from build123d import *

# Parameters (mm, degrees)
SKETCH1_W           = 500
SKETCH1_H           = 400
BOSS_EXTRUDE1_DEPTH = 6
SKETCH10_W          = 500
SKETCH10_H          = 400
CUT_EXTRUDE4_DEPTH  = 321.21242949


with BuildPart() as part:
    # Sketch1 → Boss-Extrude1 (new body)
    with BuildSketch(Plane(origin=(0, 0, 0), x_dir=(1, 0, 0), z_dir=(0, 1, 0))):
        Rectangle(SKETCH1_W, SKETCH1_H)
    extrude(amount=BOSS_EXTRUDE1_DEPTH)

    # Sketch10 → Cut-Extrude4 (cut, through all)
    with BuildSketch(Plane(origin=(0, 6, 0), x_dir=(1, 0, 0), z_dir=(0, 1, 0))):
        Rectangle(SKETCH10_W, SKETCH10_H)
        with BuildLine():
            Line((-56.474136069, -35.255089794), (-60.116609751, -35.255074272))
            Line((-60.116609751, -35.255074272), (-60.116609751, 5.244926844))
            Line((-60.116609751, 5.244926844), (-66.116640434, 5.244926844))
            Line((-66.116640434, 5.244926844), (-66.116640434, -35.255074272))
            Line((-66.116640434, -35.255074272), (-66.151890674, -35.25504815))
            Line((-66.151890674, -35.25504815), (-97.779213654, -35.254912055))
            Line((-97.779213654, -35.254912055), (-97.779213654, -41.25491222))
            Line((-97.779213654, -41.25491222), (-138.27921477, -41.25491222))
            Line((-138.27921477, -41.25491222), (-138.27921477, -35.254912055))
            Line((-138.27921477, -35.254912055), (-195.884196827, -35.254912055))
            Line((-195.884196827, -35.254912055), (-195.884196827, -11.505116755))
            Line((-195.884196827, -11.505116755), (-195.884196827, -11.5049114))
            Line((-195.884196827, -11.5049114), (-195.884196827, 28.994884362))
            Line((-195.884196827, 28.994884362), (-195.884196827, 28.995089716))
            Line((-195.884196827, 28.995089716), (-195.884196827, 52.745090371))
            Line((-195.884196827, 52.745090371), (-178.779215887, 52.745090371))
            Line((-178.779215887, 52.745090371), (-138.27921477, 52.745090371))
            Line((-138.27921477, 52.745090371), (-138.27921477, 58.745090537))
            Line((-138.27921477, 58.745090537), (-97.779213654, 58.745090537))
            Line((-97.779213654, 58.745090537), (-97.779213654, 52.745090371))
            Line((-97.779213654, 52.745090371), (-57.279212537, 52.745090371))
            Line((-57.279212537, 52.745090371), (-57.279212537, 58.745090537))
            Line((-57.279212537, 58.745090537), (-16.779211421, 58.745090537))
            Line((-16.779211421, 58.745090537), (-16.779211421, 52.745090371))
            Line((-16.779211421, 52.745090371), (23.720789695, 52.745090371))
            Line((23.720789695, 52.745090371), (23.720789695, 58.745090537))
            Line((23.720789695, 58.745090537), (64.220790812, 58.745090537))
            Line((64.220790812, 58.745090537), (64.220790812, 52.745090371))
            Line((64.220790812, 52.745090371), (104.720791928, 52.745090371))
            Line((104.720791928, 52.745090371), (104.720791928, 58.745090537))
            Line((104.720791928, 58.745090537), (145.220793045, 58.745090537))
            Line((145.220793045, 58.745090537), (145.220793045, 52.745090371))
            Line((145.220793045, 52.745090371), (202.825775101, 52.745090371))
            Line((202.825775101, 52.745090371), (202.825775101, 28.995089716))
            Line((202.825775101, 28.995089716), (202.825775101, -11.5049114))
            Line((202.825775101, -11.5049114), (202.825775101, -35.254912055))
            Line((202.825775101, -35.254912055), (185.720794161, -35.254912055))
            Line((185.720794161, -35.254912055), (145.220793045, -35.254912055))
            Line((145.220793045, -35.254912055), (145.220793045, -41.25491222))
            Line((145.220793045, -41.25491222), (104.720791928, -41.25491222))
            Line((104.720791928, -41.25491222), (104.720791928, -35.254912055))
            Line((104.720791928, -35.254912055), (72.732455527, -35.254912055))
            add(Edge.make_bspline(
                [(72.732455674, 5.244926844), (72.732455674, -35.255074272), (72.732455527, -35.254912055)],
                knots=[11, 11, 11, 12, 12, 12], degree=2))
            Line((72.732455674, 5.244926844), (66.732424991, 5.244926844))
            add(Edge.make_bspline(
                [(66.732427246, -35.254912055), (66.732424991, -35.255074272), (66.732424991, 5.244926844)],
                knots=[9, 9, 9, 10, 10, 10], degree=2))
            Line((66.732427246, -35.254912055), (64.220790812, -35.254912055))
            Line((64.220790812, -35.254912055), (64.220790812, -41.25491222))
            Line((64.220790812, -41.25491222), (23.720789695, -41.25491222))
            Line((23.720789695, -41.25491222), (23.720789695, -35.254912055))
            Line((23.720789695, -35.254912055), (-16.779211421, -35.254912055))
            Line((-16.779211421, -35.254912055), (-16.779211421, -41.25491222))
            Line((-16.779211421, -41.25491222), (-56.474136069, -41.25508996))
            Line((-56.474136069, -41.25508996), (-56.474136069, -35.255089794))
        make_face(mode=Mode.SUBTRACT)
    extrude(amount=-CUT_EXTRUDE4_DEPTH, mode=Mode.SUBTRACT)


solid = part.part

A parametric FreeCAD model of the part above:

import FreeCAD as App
import Part
import Sketcher
Q = App.Units.Quantity


def add_polygon(sketch, points):
    """Adds a closed chain of lines whose ends are joined by coincident constraints."""
    first, n = sketch.GeometryCount, len(points)
    for a, b in zip(points, points[1:] + points[:1]):
        sketch.addGeometry(Part.LineSegment(App.Vector(*a, 0), App.Vector(*b, 0)), False)
    for i in range(n):
        sketch.addConstraint(Sketcher.Constraint("Coincident", first + i, 2, first + (i + 1) % n, 1))

doc = App.newDocument("Part")
body = doc.addObject("PartDesign::Body", "Body")

sketch1 = body.newObject("Sketcher::SketchObject", "Sketch")
sketch1.AttachmentSupport = (doc.getObject("XZ_Plane"), [""])
sketch1.MapMode = "FlatFace"
add_polygon(sketch1, [(-250, -200), (-250, 200), (250, 200), (250, -200)])
sketch1.addConstraint(Sketcher.Constraint("Vertical", 0))
sketch1.addConstraint(Sketcher.Constraint("Horizontal", 1))
sketch1.addConstraint(Sketcher.Constraint("Vertical", 2))
sketch1.addConstraint(Sketcher.Constraint("Horizontal", 3))
sketch1.addConstraint(Sketcher.Constraint("Symmetric", 0, 2, 2, 2, -1, 1))
sketch1.addConstraint(Sketcher.Constraint("DistanceX", 1, 1, 1, 2, Q("500 mm")))
sketch1.addConstraint(Sketcher.Constraint("DistanceY", 0, 1, 0, 2, Q("400 mm")))
pad1 = body.newObject("PartDesign::Pad", "Pad")
pad1.Profile = sketch1
pad1.Length = 6
pad1.Reversed = True

sketch2 = body.newObject("Sketcher::SketchObject", "Sketch001")
sketch2.AttachmentSupport = (doc.getObject("XZ_Plane"), [""])
sketch2.MapMode = "FlatFace"
sketch2.AttachmentOffset = App.Placement(App.Vector(0, 0, -6), App.Rotation())
add_polygon(sketch2, [(-250, -200), (-250, 200), (250, 200), (250, -200)])
sketch2.addGeometry(Part.LineSegment(App.Vector(-56.474136, 41.25509, 0), App.Vector(-56.474136, 35.25509, 0)), False)
sketch2.addGeometry(Part.LineSegment(App.Vector(-56.474136, 35.25509, 0), App.Vector(-60.11661, 35.255074, 0)), False)
sketch2.addGeometry(Part.LineSegment(App.Vector(-60.11661, 35.255074, 0), App.Vector(-60.11661, -5.244927, 0)), False)
sketch2.addGeometry(Part.LineSegment(App.Vector(-60.11661, -5.244927, 0), App.Vector(-66.11664, -5.244927, 0)), False)
sketch2.addGeometry(Part.LineSegment(App.Vector(-66.11664, -5.244927, 0), App.Vector(-66.11664, 35.255074, 0)), False)
sketch2.addGeometry(Part.LineSegment(App.Vector(-66.11664, 35.255074, 0), App.Vector(-66.151891, 35.255048, 0)), False)
sketch2.addGeometry(Part.LineSegment(App.Vector(-66.151891, 35.255048, 0), App.Vector(-97.779214, 35.254912, 0)), False)
sketch2.addGeometry(Part.LineSegment(App.Vector(-97.779214, 35.254912, 0), App.Vector(-97.779214, 41.254912, 0)), False)
sketch2.addGeometry(Part.LineSegment(App.Vector(-97.779214, 41.254912, 0), App.Vector(-138.279215, 41.254912, 0)), False)
sketch2.addGeometry(Part.LineSegment(App.Vector(-138.279215, 41.254912, 0), App.Vector(-138.279215, 35.254912, 0)), False)
sketch2.addGeometry(Part.LineSegment(App.Vector(-138.279215, 35.254912, 0), App.Vector(-195.884197, 35.254912, 0)), False)
sketch2.addGeometry(Part.LineSegment(App.Vector(-195.884197, 35.254912, 0), App.Vector(-195.884197, -52.74509, 0)), False)
sketch2.addGeometry(Part.LineSegment(App.Vector(-195.884197, -52.74509, 0), App.Vector(-138.279215, -52.74509, 0)), False)
sketch2.addGeometry(Part.LineSegment(App.Vector(-138.279215, -52.74509, 0), App.Vector(-138.279215, -58.745091, 0)), False)
sketch2.addGeometry(Part.LineSegment(App.Vector(-138.279215, -58.745091, 0), App.Vector(-97.779214, -58.745091, 0)), False)
sketch2.addGeometry(Part.LineSegment(App.Vector(-97.779214, -58.745091, 0), App.Vector(-97.779214, -52.74509, 0)), False)
sketch2.addGeometry(Part.LineSegment(App.Vector(-97.779214, -52.74509, 0), App.Vector(-57.279213, -52.74509, 0)), False)
sketch2.addGeometry(Part.LineSegment(App.Vector(-57.279213, -52.74509, 0), App.Vector(-57.279213, -58.745091, 0)), False)
sketch2.addGeometry(Part.LineSegment(App.Vector(-57.279213, -58.745091, 0), App.Vector(-16.779211, -58.745091, 0)), False)
sketch2.addGeometry(Part.LineSegment(App.Vector(-16.779211, -58.745091, 0), App.Vector(-16.779211, -52.74509, 0)), False)
sketch2.addGeometry(Part.LineSegment(App.Vector(-16.779211, -52.74509, 0), App.Vector(23.72079, -52.74509, 0)), False)
sketch2.addGeometry(Part.LineSegment(App.Vector(23.72079, -52.74509, 0), App.Vector(23.72079, -58.745091, 0)), False)
sketch2.addGeometry(Part.LineSegment(App.Vector(23.72079, -58.745091, 0), App.Vector(64.220791, -58.745091, 0)), False)
sketch2.addGeometry(Part.LineSegment(App.Vector(64.220791, -58.745091, 0), App.Vector(64.220791, -52.74509, 0)), False)
sketch2.addGeometry(Part.LineSegment(App.Vector(64.220791, -52.74509, 0), App.Vector(104.720792, -52.74509, 0)), False)
sketch2.addGeometry(Part.LineSegment(App.Vector(104.720792, -52.74509, 0), App.Vector(104.720792, -58.745091, 0)), False)
sketch2.addGeometry(Part.LineSegment(App.Vector(104.720792, -58.745091, 0), App.Vector(145.220793, -58.745091, 0)), False)
sketch2.addGeometry(Part.LineSegment(App.Vector(145.220793, -58.745091, 0), App.Vector(145.220793, -52.74509, 0)), False)
sketch2.addGeometry(Part.LineSegment(App.Vector(145.220793, -52.74509, 0), App.Vector(202.825775, -52.74509, 0)), False)
sketch2.addGeometry(Part.LineSegment(App.Vector(202.825775, -52.74509, 0), App.Vector(202.825775, 35.254912, 0)), False)
sketch2.addGeometry(Part.LineSegment(App.Vector(202.825775, 35.254912, 0), App.Vector(145.220793, 35.254912, 0)), False)
sketch2.addGeometry(Part.LineSegment(App.Vector(145.220793, 35.254912, 0), App.Vector(145.220793, 41.254912, 0)), False)
sketch2.addGeometry(Part.LineSegment(App.Vector(145.220793, 41.254912, 0), App.Vector(104.720792, 41.254912, 0)), False)
sketch2.addGeometry(Part.LineSegment(App.Vector(104.720792, 41.254912, 0), App.Vector(104.720792, 35.254912, 0)), False)
sketch2.addGeometry(Part.LineSegment(App.Vector(104.720792, 35.254912, 0), App.Vector(72.732456, 35.254912, 0)), False)
sketch2.addGeometry(Part.BSplineCurve([App.Vector(72.732456, -5.244927, 0), App.Vector(72.732456, 35.255074, 0), App.Vector(72.732456, 35.254912, 0)], [3, 3], [11, 12], False, 2, [1, 1, 1], False), False)
sketch2.addGeometry(Part.LineSegment(App.Vector(72.732456, -5.244927, 0), App.Vector(66.732425, -5.244927, 0)), False)
sketch2.addGeometry(Part.BSplineCurve([App.Vector(66.732427, 35.254912, 0), App.Vector(66.732425, 35.255074, 0), App.Vector(66.732425, -5.244927, 0)], [3, 3], [9, 10], False, 2, [1, 1, 1], False), False)
sketch2.addGeometry(Part.LineSegment(App.Vector(66.732427, 35.254912, 0), App.Vector(64.220791, 35.254912, 0)), False)
sketch2.addGeometry(Part.LineSegment(App.Vector(64.220791, 35.254912, 0), App.Vector(64.220791, 41.254912, 0)), False)
sketch2.addGeometry(Part.LineSegment(App.Vector(64.220791, 41.254912, 0), App.Vector(23.72079, 41.254912, 0)), False)
sketch2.addGeometry(Part.LineSegment(App.Vector(23.72079, 41.254912, 0), App.Vector(23.72079, 35.254912, 0)), False)
sketch2.addGeometry(Part.LineSegment(App.Vector(23.72079, 35.254912, 0), App.Vector(-16.779211, 35.254912, 0)), False)
sketch2.addGeometry(Part.LineSegment(App.Vector(-16.779211, 35.254912, 0), App.Vector(-16.779211, 41.254912, 0)), False)
sketch2.addGeometry(Part.LineSegment(App.Vector(-16.779211, 41.254912, 0), App.Vector(-56.474136, 41.25509, 0)), False)
sketch2.addConstraint(Sketcher.Constraint("Block", 39))
sketch2.addConstraint(Sketcher.Constraint("Block", 41))
sketch2.addConstraint(Sketcher.Constraint("Coincident", 4, 2, 5, 1))
sketch2.addConstraint(Sketcher.Constraint("Coincident", 5, 2, 6, 1))
sketch2.addConstraint(Sketcher.Constraint("Coincident", 6, 2, 7, 1))
sketch2.addConstraint(Sketcher.Constraint("Coincident", 7, 2, 8, 1))
sketch2.addConstraint(Sketcher.Constraint("Coincident", 8, 2, 9, 1))
sketch2.addConstraint(Sketcher.Constraint("Coincident", 9, 2, 10, 1))
sketch2.addConstraint(Sketcher.Constraint("Coincident", 10, 2, 11, 1))
sketch2.addConstraint(Sketcher.Constraint("Coincident", 11, 2, 12, 1))
sketch2.addConstraint(Sketcher.Constraint("Coincident", 12, 2, 13, 1))
sketch2.addConstraint(Sketcher.Constraint("Coincident", 13, 2, 14, 1))
sketch2.addConstraint(Sketcher.Constraint("Coincident", 14, 2, 15, 1))
sketch2.addConstraint(Sketcher.Constraint("Coincident", 15, 2, 16, 1))
sketch2.addConstraint(Sketcher.Constraint("Coincident", 16, 2, 17, 1))
sketch2.addConstraint(Sketcher.Constraint("Coincident", 17, 2, 18, 1))
sketch2.addConstraint(Sketcher.Constraint("Coincident", 18, 2, 19, 1))
sketch2.addConstraint(Sketcher.Constraint("Coincident", 19, 2, 20, 1))
sketch2.addConstraint(Sketcher.Constraint("Coincident", 20, 2, 21, 1))
sketch2.addConstraint(Sketcher.Constraint("Coincident", 21, 2, 22, 1))
sketch2.addConstraint(Sketcher.Constraint("Coincident", 22, 2, 23, 1))
sketch2.addConstraint(Sketcher.Constraint("Coincident", 23, 2, 24, 1))
sketch2.addConstraint(Sketcher.Constraint("Coincident", 24, 2, 25, 1))
sketch2.addConstraint(Sketcher.Constraint("Coincident", 25, 2, 26, 1))
sketch2.addConstraint(Sketcher.Constraint("Coincident", 26, 2, 27, 1))
sketch2.addConstraint(Sketcher.Constraint("Coincident", 27, 2, 28, 1))
sketch2.addConstraint(Sketcher.Constraint("Coincident", 28, 2, 29, 1))
sketch2.addConstraint(Sketcher.Constraint("Coincident", 29, 2, 30, 1))
sketch2.addConstraint(Sketcher.Constraint("Coincident", 30, 2, 31, 1))
sketch2.addConstraint(Sketcher.Constraint("Coincident", 31, 2, 32, 1))
sketch2.addConstraint(Sketcher.Constraint("Coincident", 32, 2, 33, 1))
sketch2.addConstraint(Sketcher.Constraint("Coincident", 33, 2, 34, 1))
sketch2.addConstraint(Sketcher.Constraint("Coincident", 34, 2, 35, 1))
sketch2.addConstraint(Sketcher.Constraint("Coincident", 35, 2, 36, 1))
sketch2.addConstraint(Sketcher.Constraint("Coincident", 36, 2, 37, 1))
sketch2.addConstraint(Sketcher.Constraint("Coincident", 37, 2, 38, 1))
sketch2.addConstraint(Sketcher.Constraint("Coincident", 38, 2, 39, 2))
sketch2.addConstraint(Sketcher.Constraint("Coincident", 39, 1, 40, 1))
sketch2.addConstraint(Sketcher.Constraint("Coincident", 40, 2, 41, 2))
sketch2.addConstraint(Sketcher.Constraint("Coincident", 41, 1, 42, 1))
sketch2.addConstraint(Sketcher.Constraint("Coincident", 42, 2, 43, 1))
sketch2.addConstraint(Sketcher.Constraint("Coincident", 43, 2, 44, 1))
sketch2.addConstraint(Sketcher.Constraint("Coincident", 44, 2, 45, 1))
sketch2.addConstraint(Sketcher.Constraint("Coincident", 45, 2, 46, 1))
sketch2.addConstraint(Sketcher.Constraint("Coincident", 46, 2, 47, 1))
sketch2.addConstraint(Sketcher.Constraint("Coincident", 47, 2, 48, 1))
sketch2.addConstraint(Sketcher.Constraint("Coincident", 48, 2, 4, 1))
sketch2.addConstraint(Sketcher.Constraint("Vertical", 0))
sketch2.addConstraint(Sketcher.Constraint("Horizontal", 1))
sketch2.addConstraint(Sketcher.Constraint("Vertical", 2))
sketch2.addConstraint(Sketcher.Constraint("Horizontal", 3))
sketch2.addConstraint(Sketcher.Constraint("Vertical", 4))
sketch2.addConstraint(Sketcher.Constraint("Vertical", 6))
sketch2.addConstraint(Sketcher.Constraint("Horizontal", 7))
sketch2.addConstraint(Sketcher.Constraint("Vertical", 8))
sketch2.addConstraint(Sketcher.Constraint("Vertical", 11))
sketch2.addConstraint(Sketcher.Constraint("Horizontal", 12))
sketch2.addConstraint(Sketcher.Constraint("Vertical", 13))
sketch2.addConstraint(Sketcher.Constraint("Horizontal", 14))
sketch2.addConstraint(Sketcher.Constraint("Vertical", 15))
sketch2.addConstraint(Sketcher.Constraint("Horizontal", 16))
sketch2.addConstraint(Sketcher.Constraint("Vertical", 17))
sketch2.addConstraint(Sketcher.Constraint("Horizontal", 18))
sketch2.addConstraint(Sketcher.Constraint("Vertical", 19))
sketch2.addConstraint(Sketcher.Constraint("Horizontal", 20))
sketch2.addConstraint(Sketcher.Constraint("Vertical", 21))
sketch2.addConstraint(Sketcher.Constraint("Horizontal", 22))
sketch2.addConstraint(Sketcher.Constraint("Vertical", 23))
sketch2.addConstraint(Sketcher.Constraint("Horizontal", 24))
sketch2.addConstraint(Sketcher.Constraint("Vertical", 25))
sketch2.addConstraint(Sketcher.Constraint("Horizontal", 26))
sketch2.addConstraint(Sketcher.Constraint("Vertical", 27))
sketch2.addConstraint(Sketcher.Constraint("Horizontal", 28))
sketch2.addConstraint(Sketcher.Constraint("Vertical", 29))
sketch2.addConstraint(Sketcher.Constraint("Horizontal", 30))
sketch2.addConstraint(Sketcher.Constraint("Vertical", 31))
sketch2.addConstraint(Sketcher.Constraint("Horizontal", 32))
sketch2.addConstraint(Sketcher.Constraint("Vertical", 33))
sketch2.addConstraint(Sketcher.Constraint("Horizontal", 34))
sketch2.addConstraint(Sketcher.Constraint("Vertical", 35))
sketch2.addConstraint(Sketcher.Constraint("Horizontal", 36))
sketch2.addConstraint(Sketcher.Constraint("Vertical", 37))
sketch2.addConstraint(Sketcher.Constraint("Horizontal", 38))
sketch2.addConstraint(Sketcher.Constraint("Horizontal", 42))
sketch2.addConstraint(Sketcher.Constraint("Vertical", 43))
sketch2.addConstraint(Sketcher.Constraint("Horizontal", 44))
sketch2.addConstraint(Sketcher.Constraint("Vertical", 45))
sketch2.addConstraint(Sketcher.Constraint("Horizontal", 46))
sketch2.addConstraint(Sketcher.Constraint("Vertical", 47))
sketch2.addConstraint(Sketcher.Constraint("DistanceX", 1, 1, 1, 2, Q("500 mm")))
sketch2.addConstraint(Sketcher.Constraint("DistanceY", 0, 1, 0, 2, Q("400 mm")))
sketch2.addConstraint(Sketcher.Constraint("DistanceY", 4, 2, 4, 1, Q("6 mm")))
sketch2.addConstraint(Sketcher.Constraint("DistanceY", 11, 1, 11, 2, Q("6 mm")))
sketch2.addConstraint(Sketcher.Constraint("DistanceY", 13, 2, 13, 1, Q("6 mm")))
sketch2.addConstraint(Sketcher.Constraint("DistanceY", 17, 2, 17, 1, Q("6 mm")))
sketch2.addConstraint(Sketcher.Constraint("DistanceY", 19, 1, 19, 2, Q("6 mm")))
sketch2.addConstraint(Sketcher.Constraint("DistanceY", 21, 2, 21, 1, Q("6 mm")))
sketch2.addConstraint(Sketcher.Constraint("DistanceY", 23, 1, 23, 2, Q("6 mm")))
sketch2.addConstraint(Sketcher.Constraint("DistanceY", 25, 2, 25, 1, Q("6 mm")))
sketch2.addConstraint(Sketcher.Constraint("DistanceY", 27, 1, 27, 2, Q("6 mm")))
sketch2.addConstraint(Sketcher.Constraint("DistanceY", 29, 2, 29, 1, Q("6 mm")))
sketch2.addConstraint(Sketcher.Constraint("DistanceY", 31, 1, 31, 2, Q("6 mm")))
sketch2.addConstraint(Sketcher.Constraint("DistanceY", 35, 1, 35, 2, Q("6 mm")))
sketch2.addConstraint(Sketcher.Constraint("DistanceY", 37, 2, 37, 1, Q("6 mm")))
sketch2.addConstraint(Sketcher.Constraint("DistanceY", 43, 1, 43, 2, Q("6 mm")))
sketch2.addConstraint(Sketcher.Constraint("DistanceY", 45, 2, 45, 1, Q("6 mm")))
sketch2.addConstraint(Sketcher.Constraint("DistanceY", 47, 1, 47, 2, Q("6 mm")))
sketch2.addConstraint(Sketcher.Constraint("DistanceX", 12, 2, 12, 1, Q("40.500001 mm")))
sketch2.addConstraint(Sketcher.Constraint("DistanceX", 18, 1, 18, 2, Q("40.500001 mm")))
sketch2.addConstraint(Sketcher.Constraint("DistanceX", 20, 1, 20, 2, Q("40.500001 mm")))
sketch2.addConstraint(Sketcher.Constraint("DistanceX", 22, 1, 22, 2, Q("40.500001 mm")))
sketch2.addConstraint(Sketcher.Constraint("DistanceX", 24, 1, 24, 2, Q("40.500001 mm")))
sketch2.addConstraint(Sketcher.Constraint("DistanceX", 26, 1, 26, 2, Q("40.500001 mm")))
sketch2.addConstraint(Sketcher.Constraint("DistanceX", 28, 1, 28, 2, Q("40.500001 mm")))
sketch2.addConstraint(Sketcher.Constraint("DistanceX", 30, 1, 30, 2, Q("40.500001 mm")))
sketch2.addConstraint(Sketcher.Constraint("DistanceX", 36, 2, 36, 1, Q("40.500001 mm")))
sketch2.addConstraint(Sketcher.Constraint("DistanceX", 44, 2, 44, 1, Q("40.500001 mm")))
sketch2.addConstraint(Sketcher.Constraint("DistanceX", 46, 2, 46, 1, Q("40.500001 mm")))
sketch2.addConstraint(Sketcher.Constraint("DistanceY", 6, 2, 6, 1, Q("40.500001 mm")))
sketch2.addConstraint(Sketcher.Constraint("DistanceY", 8, 1, 8, 2, Q("40.500001 mm")))
sketch2.addConstraint(Sketcher.Constraint("DistanceX", 0, 2, -1, 1, Q("250 mm")))
sketch2.addConstraint(Sketcher.Constraint("DistanceY", -1, 1, 0, 2, Q("200 mm")))
sketch2.addConstraint(Sketcher.Constraint("DistanceX", 28, 2, 34, 2, Q("40.500001 mm")))
sketch2.addConstraint(Sketcher.Constraint("DistanceX", 42, 2, 37, 2, Q("40.500001 mm")))
sketch2.addConstraint(Sketcher.Constraint("DistanceX", 7, 2, 7, 1, Q("6.000031 mm")))
sketch2.addConstraint(Sketcher.Constraint("DistanceX", 6, 2, 22, 2, Q("43.337398 mm")))
sketch2.addConstraint(Sketcher.Constraint("Distance", 9, Q("0.03525 mm")))
sketch2.addConstraint(Sketcher.Constraint("DistanceX", 14, 2, 14, 1, Q("57.604982 mm")))
sketch2.addConstraint(Sketcher.Constraint("DistanceX", 16, 1, 16, 2, Q("57.604982 mm")))
sketch2.addConstraint(Sketcher.Constraint("DistanceX", 32, 1, 32, 2, Q("57.604982 mm")))
sketch2.addConstraint(Sketcher.Constraint("DistanceX", 38, 2, 38, 1, Q("31.988336 mm")))
sketch2.addConstraint(Sketcher.Constraint("DistanceY", 15, 2, 15, 1, Q("88.000002 mm")))
sketch2.addConstraint(Sketcher.Constraint("DistanceY", 33, 1, 33, 2, Q("88.000002 mm")))
sketch2.addConstraint(Sketcher.Constraint("DistanceY", -1, 1, 4, 2, Q("35.25509 mm")))
sketch2.addConstraint(Sketcher.Constraint("DistanceY", -1, 1, 9, 2, Q("35.255048 mm")))
sketch2.addConstraint(Sketcher.Constraint("DistanceY", 7, 2, 10, 2, Q("40.499839 mm")))
sketch2.addConstraint(Sketcher.Constraint("Distance", 5, Q("3.642474 mm")))
pocket1 = body.newObject("PartDesign::Pocket", "Pocket")
pocket1.Profile = sketch2
pocket1.Type = "ThroughAll"
pocket1.Reversed = True

doc.recompute()
